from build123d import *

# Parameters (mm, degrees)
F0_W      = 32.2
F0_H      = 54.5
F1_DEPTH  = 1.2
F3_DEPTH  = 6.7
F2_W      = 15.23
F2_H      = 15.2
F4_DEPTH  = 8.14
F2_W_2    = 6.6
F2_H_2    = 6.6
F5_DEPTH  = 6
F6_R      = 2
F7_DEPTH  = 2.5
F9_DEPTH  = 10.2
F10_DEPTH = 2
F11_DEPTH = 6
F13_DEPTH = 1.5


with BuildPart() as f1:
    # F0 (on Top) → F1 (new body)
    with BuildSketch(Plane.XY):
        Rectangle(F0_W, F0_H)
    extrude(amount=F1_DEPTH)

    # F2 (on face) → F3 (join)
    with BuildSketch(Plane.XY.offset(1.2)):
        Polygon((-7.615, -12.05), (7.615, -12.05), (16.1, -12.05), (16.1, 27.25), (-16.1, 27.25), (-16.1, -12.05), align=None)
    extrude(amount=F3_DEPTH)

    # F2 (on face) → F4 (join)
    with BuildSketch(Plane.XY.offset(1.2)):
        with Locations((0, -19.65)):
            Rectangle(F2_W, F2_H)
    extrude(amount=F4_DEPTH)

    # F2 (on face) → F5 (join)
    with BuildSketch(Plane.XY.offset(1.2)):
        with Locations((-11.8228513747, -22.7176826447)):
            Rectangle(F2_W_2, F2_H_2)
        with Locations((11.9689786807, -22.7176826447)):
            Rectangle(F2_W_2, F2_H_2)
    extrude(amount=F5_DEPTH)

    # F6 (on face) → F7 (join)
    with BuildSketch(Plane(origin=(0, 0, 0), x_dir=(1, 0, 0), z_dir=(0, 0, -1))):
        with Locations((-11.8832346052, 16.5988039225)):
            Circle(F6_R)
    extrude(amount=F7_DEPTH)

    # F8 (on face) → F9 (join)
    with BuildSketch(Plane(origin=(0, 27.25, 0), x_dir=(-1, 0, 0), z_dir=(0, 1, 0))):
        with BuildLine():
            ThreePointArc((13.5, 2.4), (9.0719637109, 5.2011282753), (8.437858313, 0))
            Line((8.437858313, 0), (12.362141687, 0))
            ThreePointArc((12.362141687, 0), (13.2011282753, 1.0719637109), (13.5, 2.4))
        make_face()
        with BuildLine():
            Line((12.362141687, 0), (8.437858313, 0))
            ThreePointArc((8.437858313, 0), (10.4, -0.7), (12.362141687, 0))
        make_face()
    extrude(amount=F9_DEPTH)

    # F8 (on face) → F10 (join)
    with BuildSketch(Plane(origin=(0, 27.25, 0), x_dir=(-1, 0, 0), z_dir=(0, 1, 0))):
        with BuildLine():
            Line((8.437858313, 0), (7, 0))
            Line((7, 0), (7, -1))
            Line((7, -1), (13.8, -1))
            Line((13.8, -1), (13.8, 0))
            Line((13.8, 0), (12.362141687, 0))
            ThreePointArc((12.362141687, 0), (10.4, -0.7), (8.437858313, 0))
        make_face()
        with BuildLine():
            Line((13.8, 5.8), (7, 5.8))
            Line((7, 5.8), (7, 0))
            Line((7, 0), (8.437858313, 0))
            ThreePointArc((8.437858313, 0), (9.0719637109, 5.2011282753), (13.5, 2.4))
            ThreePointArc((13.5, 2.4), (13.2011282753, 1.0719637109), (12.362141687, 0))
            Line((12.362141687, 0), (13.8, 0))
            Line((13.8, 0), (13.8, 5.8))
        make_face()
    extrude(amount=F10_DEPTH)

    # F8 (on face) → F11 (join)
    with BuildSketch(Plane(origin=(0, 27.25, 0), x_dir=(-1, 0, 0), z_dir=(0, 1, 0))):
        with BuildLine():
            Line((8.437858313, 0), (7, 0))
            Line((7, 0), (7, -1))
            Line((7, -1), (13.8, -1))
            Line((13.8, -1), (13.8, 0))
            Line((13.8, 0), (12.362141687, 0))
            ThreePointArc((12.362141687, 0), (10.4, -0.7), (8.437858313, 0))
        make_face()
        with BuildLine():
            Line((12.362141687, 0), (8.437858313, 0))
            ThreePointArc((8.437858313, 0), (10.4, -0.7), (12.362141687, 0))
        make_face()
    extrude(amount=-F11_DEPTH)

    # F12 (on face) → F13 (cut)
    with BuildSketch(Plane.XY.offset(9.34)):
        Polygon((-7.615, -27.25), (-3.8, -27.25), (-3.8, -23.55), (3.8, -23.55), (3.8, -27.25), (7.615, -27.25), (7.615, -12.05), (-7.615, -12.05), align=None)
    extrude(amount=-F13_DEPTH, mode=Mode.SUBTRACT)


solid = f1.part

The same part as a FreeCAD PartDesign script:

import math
import FreeCAD as App
import Part
import Sketcher


def add_polygon(sketch, points):
    """Adds a closed chain of lines whose ends are joined by coincident constraints."""
    first, n = sketch.GeometryCount, len(points)
    for a, b in zip(points, points[1:] + points[:1]):
        sketch.addGeometry(Part.LineSegment(App.Vector(*a, 0), App.Vector(*b, 0)), False)
    for i in range(n):
        sketch.addConstraint(Sketcher.Constraint("Coincident", first + i, 2, first + (i + 1) % n, 1))

doc = App.newDocument("Part")
body = doc.addObject("PartDesign::Body", "Body")

sketch1 = body.newObject("Sketcher::SketchObject", "Sketch")
sketch1.AttachmentSupport = (doc.getObject("XY_Plane"), [""])
sketch1.MapMode = "FlatFace"
add_polygon(sketch1, [(-16.1, 27.25), (-16.1, -27.25), (16.1, -27.25), (16.1, 27.25)])
sketch1.addConstraint(Sketcher.Constraint("Vertical", 0))
sketch1.addConstraint(Sketcher.Constraint("Horizontal", 1))
sketch1.addConstraint(Sketcher.Constraint("Vertical", 2))
sketch1.addConstraint(Sketcher.Constraint("Horizontal", 3))
sketch1.addConstraint(Sketcher.Constraint("Symmetric", 0, 2, 2, 2, -1, 1))
sketch1.addConstraint(Sketcher.Constraint("DistanceX", 1, 1, 1, 2, 32.2))
sketch1.addConstraint(Sketcher.Constraint("DistanceY", 0, 2, 0, 1, 54.5))
pad1 = body.newObject("PartDesign::Pad", "Pad")
pad1.Profile = sketch1
pad1.Length = 1.2

sketch2 = body.newObject("Sketcher::SketchObject", "Sketch001")
sketch2.AttachmentSupport = (doc.getObject("XY_Plane"), [""])
sketch2.MapMode = "FlatFace"
sketch2.AttachmentOffset = App.Placement(App.Vector(0, 0, 1.2), App.Rotation())
add_polygon(sketch2, [(16.1, -12.05), (16.1, 27.25), (-16.1, 27.25), (-16.1, -12.05)])
sketch2.addConstraint(Sketcher.Constraint("Vertical", 0))
sketch2.addConstraint(Sketcher.Constraint("Horizontal", 1))
sketch2.addConstraint(Sketcher.Constraint("Vertical", 2))
sketch2.addConstraint(Sketcher.Constraint("Horizontal", 3))
sketch2.addConstraint(Sketcher.Constraint("DistanceX", 1, 2, 1, 1, 32.2))
sketch2.addConstraint(Sketcher.Constraint("DistanceY", 0, 1, 0, 2, 39.3))
sketch2.addConstraint(Sketcher.Constraint("DistanceX", -1, 1, 0, 2, 16.1))
sketch2.addConstraint(Sketcher.Constraint("DistanceY", -1, 1, 0, 2, 27.25))
pad2 = body.newObject("PartDesign::Pad", "Pad001")
pad2.Profile = sketch2
pad2.Length = 6.7

sketch3 = body.newObject("Sketcher::SketchObject", "Sketch002")
sketch3.AttachmentSupport = (doc.getObject("XY_Plane"), [""])
sketch3.MapMode = "FlatFace"
sketch3.AttachmentOffset = App.Placement(App.Vector(0, 0, 1.2), App.Rotation())
add_polygon(sketch3, [(-7.615, -12.05), (-7.615, -27.25), (7.615, -27.25), (7.615, -12.05)])
sketch3.addConstraint(Sketcher.Constraint("Vertical", 0))
sketch3.addConstraint(Sketcher.Constraint("Horizontal", 1))
sketch3.addConstraint(Sketcher.Constraint("Vertical", 2))
sketch3.addConstraint(Sketcher.Constraint("Horizontal", 3))
sketch3.addConstraint(Sketcher.Constraint("DistanceY", 0, 2, 0, 1, 15.2))
sketch3.addConstraint(Sketcher.Constraint("DistanceX", 1, 1, 1, 2, 15.23))
sketch3.addConstraint(Sketcher.Constraint("DistanceY", 0, 2, -1, 1, 27.25))
sketch3.addConstraint(Sketcher.Constraint("DistanceX", 0, 2, -1, 1, 7.615))
pad3 = body.newObject("PartDesign::Pad", "Pad002")
pad3.Profile = sketch3
pad3.Length = 8.14

sketch4 = body.newObject("Sketcher::SketchObject", "Sketch003")
sketch4.AttachmentSupport = (doc.getObject("XY_Plane"), [""])
sketch4.MapMode = "FlatFace"
sketch4.AttachmentOffset = App.Placement(App.Vector(0, 0, 1.2), App.Rotation())
add_polygon(sketch4, [(-15.122851, -19.417683), (-15.122851, -26.017683), (-8.522851, -26.017683), (-8.522851, -19.417683)])
add_polygon(sketch4, [(8.668979, -19.417683), (8.668979, -26.017683), (15.268979, -26.017683), (15.268979, -19.417683)])
sketch4.addConstraint(Sketcher.Constraint("Vertical", 0))
sketch4.addConstraint(Sketcher.Constraint("Horizontal", 1))
sketch4.addConstraint(Sketcher.Constraint("Vertical", 2))
sketch4.addConstraint(Sketcher.Constraint("Horizontal", 3))
sketch4.addConstraint(Sketcher.Constraint("Vertical", 4))
sketch4.addConstraint(Sketcher.Constraint("Horizontal", 5))
sketch4.addConstraint(Sketcher.Constraint("Vertical", 6))
sketch4.addConstraint(Sketcher.Constraint("Horizontal", 7))
sketch4.addConstraint(Sketcher.Constraint("Horizontal", 1, 2, 4, 2))
sketch4.addConstraint(Sketcher.Constraint("Horizontal", 3, 2, 6, 2))
sketch4.addConstraint(Sketcher.Constraint("Equal", 3, 5))
sketch4.addConstraint(Sketcher.Constraint("Equal", 7, 0))
sketch4.addConstraint(Sketcher.Constraint("DistanceX", 1, 1, 1, 2, 6.6))
sketch4.addConstraint(Sketcher.Constraint("DistanceX", 0, 2, -1, 1, 15.122851))
sketch4.addConstraint(Sketcher.Constraint("DistanceX", -1, 1, 4, 2, 8.668979))
sketch4.addConstraint(Sketcher.Constraint("DistanceY", 0, 2, -1, 1, 26.017683))
pad4 = body.newObject("PartDesign::Pad", "Pad003")
pad4.Profile = sketch4
pad4.Length = 6

sketch5 = body.newObject("Sketcher::SketchObject", "Sketch004")
sketch5.AttachmentSupport = (doc.getObject("XY_Plane"), [""])
sketch5.MapMode = "FlatFace"
sketch5.addGeometry(Part.Circle(App.Vector(-11.883235, -16.598804, 0), App.Vector(0, 0, 1), 2), False)
sketch5.addConstraint(Sketcher.Constraint("Diameter", 0, 4.0))
sketch5.addConstraint(Sketcher.Constraint("DistanceX", 0, 3, -1, 1, 11.883235))
sketch5.addConstraint(Sketcher.Constraint("DistanceY", 0, 3, -1, 1, 16.598804))
pad5 = body.newObject("PartDesign::Pad", "Pad004")
pad5.Profile = sketch5
pad5.Length = 2.5
pad5.Reversed = True

sketch6 = body.newObject("Sketcher::SketchObject", "Sketch005")
sketch6.AttachmentSupport = (doc.getObject("XZ_Plane"), [""])
sketch6.MapMode = "FlatFace"
sketch6.AttachmentOffset = App.Placement(App.Vector(0, 0, -27.25), App.Rotation())
sketch6.addGeometry(Part.ArcOfCircle(Part.Circle(App.Vector(-10.4, 2.4, 0), App.Vector(0, 0, 1), 3.1), math.radians(-50.731974), math.radians(180)), False)
sketch6.addGeometry(Part.ArcOfCircle(Part.Circle(App.Vector(-10.4, 2.4, 0), App.Vector(0, 0, 1), 3.1), math.radians(-129.268026), math.radians(-50.731974)), False)
sketch6.addGeometry(Part.ArcOfCircle(Part.Circle(App.Vector(-10.4, 2.4, 0), App.Vector(0, 0, 1), 3.1), math.radians(180), math.radians(230.731974)), False)
sketch6.addConstraint(Sketcher.Constraint("Tangent", 0, 1, 1, 2))
sketch6.addConstraint(Sketcher.Constraint("Tangent", 1, 1, 2, 2))
sketch6.addConstraint(Sketcher.Constraint("Tangent", 2, 1, 0, 2))
sketch6.addConstraint(Sketcher.Constraint("PointOnObject", 0, 1, -1))
sketch6.addConstraint(Sketcher.Constraint("PointOnObject", 1, 1, -1))
sketch6.addConstraint(Sketcher.Constraint("Horizontal", 1, 3, 2, 1))
sketch6.addConstraint(Sketcher.Constraint("Radius", 0, 3.1))
sketch6.addConstraint(Sketcher.Constraint("DistanceX", 0, 3, -1, 1, 10.4))
sketch6.addConstraint(Sketcher.Constraint("DistanceY", -1, 1, 0, 3, 2.4))
pad6 = body.newObject("PartDesign::Pad", "Pad005")
pad6.Profile = sketch6
pad6.Length = 10.2
pad6.Reversed = True

sketch7 = body.newObject("Sketcher::SketchObject", "Sketch006")
sketch7.AttachmentSupport = (doc.getObject("XZ_Plane"), [""])
sketch7.MapMode = "FlatFace"
sketch7.AttachmentOffset = App.Placement(App.Vector(0, 0, -27.25), App.Rotation())
add_polygon(sketch7, [(-7, -1), (-13.8, -1), (-13.8, 5.8), (-7, 5.8)])
sketch7.addGeometry(Part.ArcOfCircle(Part.Circle(App.Vector(-10.4, 2.4, 0), App.Vector(0, 0, 1), 3.1), math.radians(-129.268026), math.radians(-50.731974)), False)
sketch7.addGeometry(Part.ArcOfCircle(Part.Circle(App.Vector(-10.4, 2.4, 0), App.Vector(0, 0, 1), 3.1), math.radians(-50.731974), math.radians(180)), False)
sketch7.addGeometry(Part.ArcOfCircle(Part.Circle(App.Vector(-10.4, 2.4, 0), App.Vector(0, 0, 1), 3.1), math.radians(180), math.radians(230.731974)), False)
sketch7.addConstraint(Sketcher.Constraint("Tangent", 4, 2, 5, 1))
sketch7.addConstraint(Sketcher.Constraint("Tangent", 5, 2, 6, 1))
sketch7.addConstraint(Sketcher.Constraint("Tangent", 6, 2, 4, 1))
sketch7.addConstraint(Sketcher.Constraint("Horizontal", 0))
sketch7.addConstraint(Sketcher.Constraint("Vertical", 1))
sketch7.addConstraint(Sketcher.Constraint("Horizontal", 2))
sketch7.addConstraint(Sketcher.Constraint("Vertical", 3))
sketch7.addConstraint(Sketcher.Constraint("PointOnObject", 4, 2, -1))
sketch7.addConstraint(Sketcher.Constraint("PointOnObject", 6, 2, -1))
sketch7.addConstraint(Sketcher.Constraint("Horizontal", 6, 3, 5, 2))
sketch7.addConstraint(Sketcher.Constraint("Equal", 2, 1))
sketch7.addConstraint(Sketcher.Constraint("Radius", 4, 3.1))
sketch7.addConstraint(Sketcher.Constraint("DistanceX", 0, 2, 0, 1, 6.8))
sketch7.addConstraint(Sketcher.Constraint("DistanceY", 0, 2, -1, 1, 1.0))
sketch7.addConstraint(Sketcher.Constraint("DistanceX", 2, 2, -1, 1, 7.0))
sketch7.addConstraint(Sketcher.Constraint("DistanceX", 4, 3, -1, 1, 10.4))
sketch7.addConstraint(Sketcher.Constraint("DistanceY", -1, 1, 4, 3, 2.4))
pad7 = body.newObject("PartDesign::Pad", "Pad006")
pad7.Profile = sketch7
pad7.Length = 2
pad7.Reversed = True

sketch8 = body.newObject("Sketcher::SketchObject", "Sketch007")
sketch8.AttachmentSupport = (doc.getObject("XZ_Plane"), [""])
sketch8.MapMode = "FlatFace"
sketch8.AttachmentOffset = App.Placement(App.Vector(0, 0, -27.25), App.Rotation())
add_polygon(sketch8, [(-7, 0), (-7, -1), (-13.8, -1), (-13.8, 0)])
sketch8.addConstraint(Sketcher.Constraint("Vertical", 0))
sketch8.addConstraint(Sketcher.Constraint("Horizontal", 1))
sketch8.addConstraint(Sketcher.Constraint("Vertical", 2))
sketch8.addConstraint(Sketcher.Constraint("Horizontal", 3))
sketch8.addConstraint(Sketcher.Constraint("PointOnObject", 2, 2, -1))
sketch8.addConstraint(Sketcher.Constraint("DistanceY", 0, 2, 0, 1, 1.0))
sketch8.addConstraint(Sketcher.Constraint("DistanceX", 1, 2, 1, 1, 6.8))
sketch8.addConstraint(Sketcher.Constraint("DistanceX", 0, 2, -1, 1, 7.0))
pad8 = body.newObject("PartDesign::Pad", "Pad007")
pad8.Profile = sketch8
pad8.Length = 6

sketch9 = body.newObject("Sketcher::SketchObject", "Sketch008")
sketch9.AttachmentSupport = (doc.getObject("XY_Plane"), [""])
sketch9.MapMode = "FlatFace"
sketch9.AttachmentOffset = App.Placement(App.Vector(0, 0, 9.34), App.Rotation())
add_polygon(sketch9, [(-7.615, -27.25), (-3.8, -27.25), (-3.8, -23.55), (3.8, -23.55), (3.8, -27.25), (7.615, -27.25), (7.615, -12.05), (-7.615, -12.05)])
sketch9.addConstraint(Sketcher.Constraint("Horizontal", 0))
sketch9.addConstraint(Sketcher.Constraint("Vertical", 1))
sketch9.addConstraint(Sketcher.Constraint("Horizontal", 2))
sketch9.addConstraint(Sketcher.Constraint("Vertical", 3))
sketch9.addConstraint(Sketcher.Constraint("Horizontal", 4))
sketch9.addConstraint(Sketcher.Constraint("Vertical", 5))
sketch9.addConstraint(Sketcher.Constraint("Horizontal", 6))
sketch9.addConstraint(Sketcher.Constraint("Vertical", 7))
sketch9.addConstraint(Sketcher.Constraint("Symmetric", 0, 2, 3, 2, -2))
sketch9.addConstraint(Sketcher.Constraint("Equal", 0, 4))
sketch9.addConstraint(Sketcher.Constraint("DistanceX", 2, 1, 2, 2, 7.6))
sketch9.addConstraint(Sketcher.Constraint("DistanceY", 1, 1, 1, 2, 3.7))
sketch9.addConstraint(Sketcher.Constraint("DistanceY", 5, 1, 5, 2, 15.2))
sketch9.addConstraint(Sketcher.Constraint("DistanceX", 6, 2, 6, 1, 15.23))
sketch9.addConstraint(Sketcher.Constraint("DistanceY", 0, 2, -1, 1, 27.25))
pocket1 = body.newObject("PartDesign::Pocket", "Pocket")
pocket1.Profile = sketch9
pocket1.Length = 1.5

doc.recompute()
